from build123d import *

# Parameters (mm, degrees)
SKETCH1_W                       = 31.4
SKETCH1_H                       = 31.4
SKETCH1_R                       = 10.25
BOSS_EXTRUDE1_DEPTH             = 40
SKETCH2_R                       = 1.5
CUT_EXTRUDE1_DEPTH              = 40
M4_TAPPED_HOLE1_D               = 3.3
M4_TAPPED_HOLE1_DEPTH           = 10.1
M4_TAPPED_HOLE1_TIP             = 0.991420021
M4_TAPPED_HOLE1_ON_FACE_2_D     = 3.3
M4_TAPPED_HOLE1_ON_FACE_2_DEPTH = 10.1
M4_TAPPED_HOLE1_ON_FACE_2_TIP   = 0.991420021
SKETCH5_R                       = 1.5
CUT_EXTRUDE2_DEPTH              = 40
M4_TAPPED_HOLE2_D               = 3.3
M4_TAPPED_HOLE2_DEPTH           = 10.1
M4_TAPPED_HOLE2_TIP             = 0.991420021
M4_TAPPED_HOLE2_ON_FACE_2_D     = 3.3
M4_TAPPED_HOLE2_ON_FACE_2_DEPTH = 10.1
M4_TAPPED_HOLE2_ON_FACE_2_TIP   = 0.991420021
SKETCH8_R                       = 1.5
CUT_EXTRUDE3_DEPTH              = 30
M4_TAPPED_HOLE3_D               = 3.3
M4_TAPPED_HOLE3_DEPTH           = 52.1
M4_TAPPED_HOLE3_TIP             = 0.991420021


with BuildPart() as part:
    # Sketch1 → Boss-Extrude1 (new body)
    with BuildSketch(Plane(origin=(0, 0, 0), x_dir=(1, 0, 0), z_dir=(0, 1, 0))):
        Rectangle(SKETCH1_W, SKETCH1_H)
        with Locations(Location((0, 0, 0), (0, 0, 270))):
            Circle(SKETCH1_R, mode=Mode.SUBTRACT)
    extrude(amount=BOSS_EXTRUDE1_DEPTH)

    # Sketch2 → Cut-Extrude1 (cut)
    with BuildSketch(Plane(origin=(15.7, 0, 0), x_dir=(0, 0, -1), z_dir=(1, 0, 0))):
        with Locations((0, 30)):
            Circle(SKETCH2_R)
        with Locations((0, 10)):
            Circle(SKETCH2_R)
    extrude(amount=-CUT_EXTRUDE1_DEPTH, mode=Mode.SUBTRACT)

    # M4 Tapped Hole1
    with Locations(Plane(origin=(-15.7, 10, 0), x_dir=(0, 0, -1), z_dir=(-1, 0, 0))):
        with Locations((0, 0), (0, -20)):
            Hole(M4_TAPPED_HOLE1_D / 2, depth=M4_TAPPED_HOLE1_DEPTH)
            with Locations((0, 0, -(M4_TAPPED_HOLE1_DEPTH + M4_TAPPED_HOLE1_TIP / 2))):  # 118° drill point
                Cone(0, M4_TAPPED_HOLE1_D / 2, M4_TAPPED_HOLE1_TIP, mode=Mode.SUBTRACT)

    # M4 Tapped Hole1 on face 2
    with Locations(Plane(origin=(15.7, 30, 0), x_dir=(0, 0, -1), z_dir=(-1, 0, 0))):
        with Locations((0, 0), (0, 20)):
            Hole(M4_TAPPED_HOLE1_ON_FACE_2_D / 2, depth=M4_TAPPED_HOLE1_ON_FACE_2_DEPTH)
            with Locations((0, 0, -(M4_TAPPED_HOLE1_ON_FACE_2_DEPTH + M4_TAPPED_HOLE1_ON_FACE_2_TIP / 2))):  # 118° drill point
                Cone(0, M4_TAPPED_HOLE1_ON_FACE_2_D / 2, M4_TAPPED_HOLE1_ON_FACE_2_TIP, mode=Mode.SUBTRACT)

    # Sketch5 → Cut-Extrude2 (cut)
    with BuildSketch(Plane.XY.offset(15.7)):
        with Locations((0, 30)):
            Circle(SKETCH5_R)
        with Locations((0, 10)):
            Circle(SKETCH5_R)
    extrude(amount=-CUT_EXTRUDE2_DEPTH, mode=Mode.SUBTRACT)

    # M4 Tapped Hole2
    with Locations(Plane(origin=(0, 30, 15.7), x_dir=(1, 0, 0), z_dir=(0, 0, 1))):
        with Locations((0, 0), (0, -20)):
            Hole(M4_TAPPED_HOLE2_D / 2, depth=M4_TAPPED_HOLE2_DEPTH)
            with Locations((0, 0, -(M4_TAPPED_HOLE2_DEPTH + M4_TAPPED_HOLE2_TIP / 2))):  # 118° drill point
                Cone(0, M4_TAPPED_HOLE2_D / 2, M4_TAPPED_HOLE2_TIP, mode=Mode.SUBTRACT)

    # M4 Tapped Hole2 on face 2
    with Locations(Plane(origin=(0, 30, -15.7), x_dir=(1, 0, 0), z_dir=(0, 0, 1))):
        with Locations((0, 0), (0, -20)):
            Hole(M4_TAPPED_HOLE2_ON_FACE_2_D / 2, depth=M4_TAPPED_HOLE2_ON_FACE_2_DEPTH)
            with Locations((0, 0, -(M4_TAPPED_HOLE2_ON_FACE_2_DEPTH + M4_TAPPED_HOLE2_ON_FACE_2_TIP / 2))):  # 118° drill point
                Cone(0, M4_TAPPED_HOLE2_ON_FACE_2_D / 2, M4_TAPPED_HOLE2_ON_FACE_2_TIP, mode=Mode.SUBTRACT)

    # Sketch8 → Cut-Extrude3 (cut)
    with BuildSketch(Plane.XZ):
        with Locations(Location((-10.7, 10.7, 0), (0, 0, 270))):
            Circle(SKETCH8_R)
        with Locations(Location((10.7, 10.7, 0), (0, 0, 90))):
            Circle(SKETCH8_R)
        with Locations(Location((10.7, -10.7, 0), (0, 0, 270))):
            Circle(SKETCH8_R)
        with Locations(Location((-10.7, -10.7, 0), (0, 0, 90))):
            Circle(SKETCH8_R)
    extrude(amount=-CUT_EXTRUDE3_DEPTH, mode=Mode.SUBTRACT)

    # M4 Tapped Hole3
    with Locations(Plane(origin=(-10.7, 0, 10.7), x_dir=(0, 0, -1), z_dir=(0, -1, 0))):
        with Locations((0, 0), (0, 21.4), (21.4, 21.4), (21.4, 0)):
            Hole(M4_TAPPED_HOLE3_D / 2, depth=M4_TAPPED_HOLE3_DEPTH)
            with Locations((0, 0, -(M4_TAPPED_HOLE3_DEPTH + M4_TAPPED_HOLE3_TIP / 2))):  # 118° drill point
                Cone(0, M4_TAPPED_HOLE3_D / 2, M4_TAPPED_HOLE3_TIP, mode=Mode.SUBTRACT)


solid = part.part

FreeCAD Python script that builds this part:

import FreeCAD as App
import Part
import Sketcher

V = App.Vector
Q = App.Units.Quantity


def add_polygon(sketch, points):
    """Adds a closed chain of lines whose ends are joined by coincident constraints."""
    first, n = sketch.GeometryCount, len(points)
    for a, b in zip(points, points[1:] + points[:1]):
        sketch.addGeometry(Part.LineSegment(App.Vector(*a, 0), App.Vector(*b, 0)), False)
    for i in range(n):
        sketch.addConstraint(Sketcher.Constraint("Coincident", first + i, 2, first + (i + 1) % n, 1))

doc = App.newDocument("Part")
body = doc.addObject("PartDesign::Body", "Body")

sketch1 = doc.addObject("Sketcher::SketchObject", "Sketch")
body.addObject(sketch1)
sketch1.AttachmentSupport = (doc.XZ_Plane, [""])
sketch1.MapMode = "FlatFace"
add_polygon(sketch1, [(-16, -16), (-16, 16), (16, 16), (16, -16)])
sketch1.addGeometry(Part.Circle(V(0, 0, 0), V(0, 0, 1), 10), False)
sketch1.addConstraint([
    Sketcher.Constraint("Vertical", 0),
    Sketcher.Constraint("Horizontal", 1),
    Sketcher.Constraint("Vertical", 2),
    Sketcher.Constraint("Horizontal", 3),
    Sketcher.Constraint("Coincident", 4, 3, -1, 1),
    Sketcher.Constraint("Symmetric", 0, 2, 2, 2, -1, 1),
    Sketcher.Constraint("Equal", 3, 0),
    Sketcher.Constraint("Diameter", 4, Q("20.5 mm")),
    Sketcher.Constraint("DistanceX", 1, 1, 1, 2, Q("31.4 mm")),
])
pad1 = doc.addObject("PartDesign::Pad", "Pad")
body.addObject(pad1)
pad1.Profile = sketch1
pad1.Length = 40
pad1.Reversed = True

sketch2 = doc.addObject("Sketcher::SketchObject", "Sketch001")
body.addObject(sketch2)
sketch2.AttachmentSupport = (doc.YZ_Plane, [""])
sketch2.MapMode = "FlatFace"
sketch2.AttachmentOffset = App.Placement(V(0, 0, 15.7), App.Rotation())
sketch2.addGeometry([
    Part.Circle(V(30, 0, 0), V(0, 0, 1), 1.5),
    Part.Circle(V(10, 0, 0), V(0, 0, 1), 1.5),
], False)
sketch2.addConstraint([
    Sketcher.Constraint("Equal", 0, 1),
    Sketcher.Constraint("PointOnObject", 0, 3, -1),
    Sketcher.Constraint("PointOnObject", 1, 3, -1),
    Sketcher.Constraint("Diameter", 0, Q("3 mm")),
    Sketcher.Constraint("DistanceX", -1, 1, 0, 3, Q("30 mm")),
    Sketcher.Constraint("DistanceX", -1, 1, 1, 3, Q("10 mm")),
])
pocket1 = doc.addObject("PartDesign::Pocket", "Pocket")
body.addObject(pocket1)
pocket1.Profile = sketch2
pocket1.Length = 40

sketch3 = doc.addObject("Sketcher::SketchObject", "Sketch002")
body.addObject(sketch3)
sketch3.AttachmentSupport = (doc.YZ_Plane, [""])
sketch3.MapMode = "FlatFace"
sketch3.AttachmentOffset = App.Placement(V(0, 0, -15.7), App.Rotation())
sketch3.addGeometry([
    Part.Circle(V(10, 0, 0), V(0, 0, 1), 1.6),
    Part.Circle(V(30, 0, 0), V(0, 0, 1), 1.6),
], False)
sketch3.addConstraint([
    Sketcher.Constraint("Equal", 0, 1),
    Sketcher.Constraint("PointOnObject", 0, 3, -1),
    Sketcher.Constraint("PointOnObject", 1, 3, -1),
    Sketcher.Constraint("Diameter", 0, Q("3.3 mm")),
    Sketcher.Constraint("DistanceX", -1, 1, 0, 3, Q("10 mm")),
    Sketcher.Constraint("DistanceX", -1, 1, 1, 3, Q("30 mm")),
])
doc.recompute()
hole = doc.addObject("PartDesign::Hole", "Hole")
body.addObject(hole)
hole.Profile = sketch3
hole.ThreadType = "None"
hole.Diameter = 3.3
hole.DepthType = "Dimension"
hole.Depth = 10.1
hole.DrillPoint = "Angled"
hole.DrillPointAngle = 118
hole.Reversed = True

sketch4 = doc.addObject("Sketcher::SketchObject", "Sketch003")
body.addObject(sketch4)
sketch4.AttachmentSupport = (doc.YZ_Plane, [""])
sketch4.MapMode = "FlatFace"
sketch4.AttachmentOffset = App.Placement(V(0, 0, 15.7), App.Rotation())
sketch4.addGeometry([
    Part.Circle(V(30, 0, 0), V(0, 0, 1), 1.6),
    Part.Circle(V(10, 0, 0), V(0, 0, 1), 1.6),
], False)
sketch4.addConstraint([
    Sketcher.Constraint("Equal", 0, 1),
    Sketcher.Constraint("PointOnObject", 0, 3, -1),
    Sketcher.Constraint("PointOnObject", 1, 3, -1),
    Sketcher.Constraint("Diameter", 0, Q("3.3 mm")),
    Sketcher.Constraint("DistanceX", -1, 1, 0, 3, Q("30 mm")),
    Sketcher.Constraint("DistanceX", -1, 1, 1, 3, Q("10 mm")),
])
doc.recompute()
hole2 = doc.addObject("PartDesign::Hole", "Hole001")
body.addObject(hole2)
hole2.Profile = sketch4
hole2.ThreadType = "None"
hole2.Diameter = 3.3
hole2.DepthType = "Dimension"
hole2.Depth = 10.1
hole2.DrillPoint = "Angled"
hole2.DrillPointAngle = 118

sketch5 = doc.addObject("Sketcher::SketchObject", "Sketch004")
body.addObject(sketch5)
sketch5.AttachmentSupport = (doc.XY_Plane, [""])
sketch5.MapMode = "FlatFace"
sketch5.AttachmentOffset = App.Placement(V(0, 0, 15.7), App.Rotation())
sketch5.addGeometry([
    Part.Circle(V(0, 30, 0), V(0, 0, 1), 1.5),
    Part.Circle(V(0, 10, 0), V(0, 0, 1), 1.5),
], False)
sketch5.addConstraint([
    Sketcher.Constraint("Equal", 0, 1),
    Sketcher.Constraint("PointOnObject", 0, 3, -2),
    Sketcher.Constraint("PointOnObject", 1, 3, -2),
    Sketcher.Constraint("Diameter", 0, Q("3 mm")),
    Sketcher.Constraint("DistanceY", -1, 1, 0, 3, Q("30 mm")),
    Sketcher.Constraint("DistanceY", -1, 1, 1, 3, Q("10 mm")),
])
pocket2 = doc.addObject("PartDesign::Pocket", "Pocket001")
body.addObject(pocket2)
pocket2.Profile = sketch5
pocket2.Length = 40

sketch6 = doc.addObject("Sketcher::SketchObject", "Sketch005")
body.addObject(sketch6)
sketch6.AttachmentSupport = (doc.XY_Plane, [""])
sketch6.MapMode = "FlatFace"
sketch6.AttachmentOffset = App.Placement(V(0, 0, 15.7), App.Rotation())
sketch6.addGeometry([
    Part.Circle(V(0, 30, 0), V(0, 0, 1), 1.6),
    Part.Circle(V(0, 10, 0), V(0, 0, 1), 1.6),
], False)
sketch6.addConstraint([
    Sketcher.Constraint("Equal", 0, 1),
    Sketcher.Constraint("PointOnObject", 0, 3, -2),
    Sketcher.Constraint("PointOnObject", 1, 3, -2),
    Sketcher.Constraint("Diameter", 0, Q("3.3 mm")),
    Sketcher.Constraint("DistanceY", -1, 1, 0, 3, Q("30 mm")),
    Sketcher.Constraint("DistanceY", -1, 1, 1, 3, Q("10 mm")),
])
doc.recompute()
hole3 = doc.addObject("PartDesign::Hole", "Hole002")
body.addObject(hole3)
hole3.Profile = sketch6
hole3.ThreadType = "None"
hole3.Diameter = 3.3
hole3.DepthType = "Dimension"
hole3.Depth = 10.1
hole3.DrillPoint = "Angled"
hole3.DrillPointAngle = 118

sketch7 = doc.addObject("Sketcher::SketchObject", "Sketch006")
body.addObject(sketch7)
sketch7.AttachmentSupport = (doc.XY_Plane, [""])
sketch7.MapMode = "FlatFace"
sketch7.AttachmentOffset = App.Placement(V(0, 0, -15.7), App.Rotation())
sketch7.addGeometry([
    Part.Circle(V(0, 30, 0), V(0, 0, 1), 1.6),
    Part.Circle(V(0, 10, 0), V(0, 0, 1), 1.6),
], False)
sketch7.addConstraint([
    Sketcher.Constraint("Equal", 0, 1),
    Sketcher.Constraint("PointOnObject", 0, 3, -2),
    Sketcher.Constraint("PointOnObject", 1, 3, -2),
    Sketcher.Constraint("Diameter", 0, Q("3.3 mm")),
    Sketcher.Constraint("DistanceY", -1, 1, 0, 3, Q("30 mm")),
    Sketcher.Constraint("DistanceY", -1, 1, 1, 3, Q("10 mm")),
])
doc.recompute()
hole4 = doc.addObject("PartDesign::Hole", "Hole003")
body.addObject(hole4)
hole4.Profile = sketch7
hole4.ThreadType = "None"
hole4.Diameter = 3.3
hole4.DepthType = "Dimension"
hole4.Depth = 10.1
hole4.DrillPoint = "Angled"
hole4.DrillPointAngle = 118
hole4.Reversed = True

sketch8 = doc.addObject("Sketcher::SketchObject", "Sketch007")
body.addObject(sketch8)
sketch8.AttachmentSupport = (doc.XZ_Plane, [""])
sketch8.MapMode = "FlatFace"
sketch8.addGeometry([
    Part.Circle(V(-10.7, 10.7, 0), V(0, 0, 1), 1.5),
    Part.Circle(V(10.7, 10.7, 0), V(0, 0, 1), 1.5),
    Part.Circle(V(10.7, -10.7, 0), V(0, 0, 1), 1.5),
    Part.Circle(V(-10.7, -10.7, 0), V(0, 0, 1), 1.5),
], False)
sketch8.addConstraint([
    Sketcher.Constraint("Equal", 0, 1),
    Sketcher.Constraint("Equal", 1, 2),
    Sketcher.Constraint("Equal", 2, 3),
    Sketcher.Constraint("Symmetric", 0, 3, 2, 3, -1, 1),
    Sketcher.Constraint("Symmetric", 1, 3, 3, 3, -1, 1),
    Sketcher.Constraint("Symmetric", 0, 3, 1, 3, -2),
    Sketcher.Constraint("Diameter", 0, Q("3 mm")),
    Sketcher.Constraint("DistanceX", 0, 3, -1, 1, Q("10.7 mm")),
    Sketcher.Constraint("DistanceY", -1, 1, 0, 3, Q("10.7 mm")),
])
pocket3 = doc.addObject("PartDesign::Pocket", "Pocket002")
body.addObject(pocket3)
pocket3.Profile = sketch8
pocket3.Length = 30

sketch9 = doc.addObject("Sketcher::SketchObject", "Sketch008")
body.addObject(sketch9)
sketch9.AttachmentSupport = (doc.XZ_Plane, [""])
sketch9.MapMode = "FlatFace"
sketch9.addGeometry([
    Part.Circle(V(-10.7, 10.7, 0), V(0, 0, 1), 1.6),
    Part.Circle(V(10.7, 10.7, 0), V(0, 0, 1), 1.6),
    Part.Circle(V(10.7, -10.7, 0), V(0, 0, 1), 1.6),
    Part.Circle(V(-10.7, -10.7, 0), V(0, 0, 1), 1.6),
], False)
sketch9.addConstraint([
    Sketcher.Constraint("Equal", 0, 1),
    Sketcher.Constraint("Equal", 1, 2),
    Sketcher.Constraint("Equal", 2, 3),
    Sketcher.Constraint("Symmetric", 0, 3, 2, 3, -1, 1),
    Sketcher.Constraint("Symmetric", 1, 3, 3, 3, -1, 1),
    Sketcher.Constraint("Symmetric", 0, 3, 1, 3, -2),
    Sketcher.Constraint("Diameter", 0, Q("3.3 mm")),
    Sketcher.Constraint("DistanceX", 0, 3, -1, 1, Q("10.7 mm")),
    Sketcher.Constraint("DistanceY", -1, 1, 0, 3, Q("10.7 mm")),
])
doc.recompute()
hole5 = doc.addObject("PartDesign::Hole", "Hole004")
body.addObject(hole5)
hole5.Profile = sketch9
hole5.ThreadType = "None"
hole5.Diameter = 3.3
hole5.DepthType = "Dimension"
hole5.Depth = 52.1
hole5.DrillPoint = "Angled"
hole5.DrillPointAngle = 118

doc.recompute()
